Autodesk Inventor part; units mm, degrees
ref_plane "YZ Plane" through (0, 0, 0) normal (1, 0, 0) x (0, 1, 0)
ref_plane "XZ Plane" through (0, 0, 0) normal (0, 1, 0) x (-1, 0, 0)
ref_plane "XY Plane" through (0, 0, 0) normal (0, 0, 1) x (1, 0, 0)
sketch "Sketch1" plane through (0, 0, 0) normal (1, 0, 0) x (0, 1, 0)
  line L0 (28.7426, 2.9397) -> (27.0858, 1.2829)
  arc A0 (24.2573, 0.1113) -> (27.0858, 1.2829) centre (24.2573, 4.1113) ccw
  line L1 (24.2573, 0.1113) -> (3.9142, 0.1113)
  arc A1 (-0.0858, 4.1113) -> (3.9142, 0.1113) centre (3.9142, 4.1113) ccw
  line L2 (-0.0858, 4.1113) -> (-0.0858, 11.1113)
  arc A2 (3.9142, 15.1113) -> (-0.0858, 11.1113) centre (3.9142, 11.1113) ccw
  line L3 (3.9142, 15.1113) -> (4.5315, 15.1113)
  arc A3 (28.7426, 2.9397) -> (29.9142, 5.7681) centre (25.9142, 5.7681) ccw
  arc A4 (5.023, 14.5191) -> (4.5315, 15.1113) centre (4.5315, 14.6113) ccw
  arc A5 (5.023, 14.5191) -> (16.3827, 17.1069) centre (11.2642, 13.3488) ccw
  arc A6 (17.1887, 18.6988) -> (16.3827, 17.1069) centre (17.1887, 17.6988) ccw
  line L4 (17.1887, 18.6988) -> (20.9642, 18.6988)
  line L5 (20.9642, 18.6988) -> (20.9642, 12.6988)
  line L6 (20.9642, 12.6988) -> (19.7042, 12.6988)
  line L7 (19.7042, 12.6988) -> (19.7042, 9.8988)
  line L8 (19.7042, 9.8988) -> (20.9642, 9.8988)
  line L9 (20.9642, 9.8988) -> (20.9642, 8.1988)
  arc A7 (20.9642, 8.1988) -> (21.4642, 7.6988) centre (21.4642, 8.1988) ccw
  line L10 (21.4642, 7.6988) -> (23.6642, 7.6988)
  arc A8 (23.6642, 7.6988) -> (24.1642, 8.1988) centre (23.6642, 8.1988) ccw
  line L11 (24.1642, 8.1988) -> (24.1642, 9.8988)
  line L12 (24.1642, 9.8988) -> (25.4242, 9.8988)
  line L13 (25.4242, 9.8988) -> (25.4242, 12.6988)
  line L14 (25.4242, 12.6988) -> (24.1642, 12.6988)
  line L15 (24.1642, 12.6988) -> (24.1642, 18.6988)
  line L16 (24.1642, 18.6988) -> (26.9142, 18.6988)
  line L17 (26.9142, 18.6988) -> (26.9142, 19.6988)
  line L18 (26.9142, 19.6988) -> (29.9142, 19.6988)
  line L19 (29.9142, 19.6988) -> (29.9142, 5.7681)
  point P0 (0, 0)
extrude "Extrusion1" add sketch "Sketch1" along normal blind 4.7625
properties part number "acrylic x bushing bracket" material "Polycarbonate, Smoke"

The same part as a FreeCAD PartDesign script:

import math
import FreeCAD as App
import Part
import Sketcher

V = App.Vector
Q = App.Units.Quantity

doc = App.newDocument("Part")
body = doc.addObject("PartDesign::Body", "Body")

# Sketch on YZ plane
sketch1 = body.newObject("Sketcher::SketchObject", "Sketch")
sketch1.AttachmentSupport = (doc.getObject("YZ_Plane"), [""])
sketch1.MapMode = "FlatFace"
sketch1.addGeometry(Part.LineSegment(V(27.1, 1.3, 0), V(28.7, 2.9, 0)), False)
sketch1.addGeometry(Part.ArcOfCircle(Part.Circle(V(25.9, 5.8, 0), V(0, 0, 1), 4), math.radians(-45), math.radians(0)), False)
sketch1.addGeometry(Part.LineSegment(V(29.9, 5.8, 0), V(29.9, 19.7, 0)), False)
sketch1.addGeometry(Part.LineSegment(V(29.9, 19.7, 0), V(26.9, 19.7, 0)), False)
sketch1.addGeometry(Part.LineSegment(V(26.9, 19.7, 0), V(26.9, 18.7, 0)), False)
sketch1.addGeometry(Part.LineSegment(V(26.9, 18.7, 0), V(24.2, 18.7, 0)), False)
sketch1.addGeometry(Part.LineSegment(V(24.2, 18.7, 0), V(24.2, 12.7, 0)), False)
sketch1.addGeometry(Part.LineSegment(V(24.2, 12.7, 0), V(25.4, 12.7, 0)), False)
sketch1.addGeometry(Part.LineSegment(V(25.4, 12.7, 0), V(25.4, 9.9, 0)), False)
sketch1.addGeometry(Part.LineSegment(V(25.4, 9.9, 0), V(24.2, 9.9, 0)), False)
sketch1.addGeometry(Part.LineSegment(V(24.2, 9.9, 0), V(24.2, 8.2, 0)), False)
sketch1.addGeometry(Part.ArcOfCircle(Part.Circle(V(23.7, 8.2, 0), V(0, 0, 1), 0.5), math.radians(-90), math.radians(0)), False)
sketch1.addGeometry(Part.LineSegment(V(23.7, 7.7, 0), V(21.5, 7.7, 0)), False)
sketch1.addGeometry(Part.ArcOfCircle(Part.Circle(V(21.5, 8.2, 0), V(0, 0, 1), 0.5), math.radians(180), math.radians(270)), False)
sketch1.addGeometry(Part.LineSegment(V(21, 8.2, 0), V(21, 9.9, 0)), False)
sketch1.addGeometry(Part.LineSegment(V(21, 9.9, 0), V(19.7, 9.9, 0)), False)
sketch1.addGeometry(Part.LineSegment(V(19.7, 9.9, 0), V(19.7, 12.7, 0)), False)
sketch1.addGeometry(Part.LineSegment(V(19.7, 12.7, 0), V(21, 12.7, 0)), False)
sketch1.addGeometry(Part.LineSegment(V(21, 12.7, 0), V(21, 18.7, 0)), False)
sketch1.addGeometry(Part.LineSegment(V(21, 18.7, 0), V(17.2, 18.7, 0)), False)
sketch1.addGeometry(Part.ArcOfCircle(Part.Circle(V(17.2, 17.7, 0), V(0, 0, 1), 1), math.radians(90), math.radians(216)), False)
sketch1.addGeometry(Part.ArcOfCircle(Part.Circle(V(11.3, 13.3, 0), V(0, 0, 1), 6.3), math.radians(169), math.radians(396)), False)
sketch1.addGeometry(Part.ArcOfCircle(Part.Circle(V(4.5, 14.6, 0), V(0, 0, 1), 0.5), math.radians(-11), math.radians(90)), False)
sketch1.addGeometry(Part.LineSegment(V(4.5, 15.1, 0), V(3.9, 15.1, 0)), False)
sketch1.addGeometry(Part.ArcOfCircle(Part.Circle(V(3.9, 11.1, 0), V(0, 0, 1), 4), math.radians(90), math.radians(180)), False)
sketch1.addGeometry(Part.LineSegment(V(-0.1, 11.1, 0), V(-0.1, 4.1, 0)), False)
sketch1.addGeometry(Part.ArcOfCircle(Part.Circle(V(3.9, 4.1, 0), V(0, 0, 1), 4), math.radians(180), math.radians(270)), False)
sketch1.addGeometry(Part.LineSegment(V(3.9, 0.1, 0), V(24.3, 0.1, 0)), False)
sketch1.addGeometry(Part.ArcOfCircle(Part.Circle(V(24.3, 4.1, 0), V(0, 0, 1), 4), math.radians(-90), math.radians(-45)), False)
sketch1.addConstraint(Sketcher.Constraint("Tangent", 0, 2, 1, 1))
sketch1.addConstraint(Sketcher.Constraint("Tangent", 1, 2, 2, 1))
sketch1.addConstraint(Sketcher.Constraint("Coincident", 2, 2, 3, 1))
sketch1.addConstraint(Sketcher.Constraint("Coincident", 3, 2, 4, 1))
sketch1.addConstraint(Sketcher.Constraint("Coincident", 4, 2, 5, 1))
sketch1.addConstraint(Sketcher.Constraint("Coincident", 5, 2, 6, 1))
sketch1.addConstraint(Sketcher.Constraint("Coincident", 6, 2, 7, 1))
sketch1.addConstraint(Sketcher.Constraint("Coincident", 7, 2, 8, 1))
sketch1.addConstraint(Sketcher.Constraint("Coincident", 8, 2, 9, 1))
sketch1.addConstraint(Sketcher.Constraint("Coincident", 9, 2, 10, 1))
sketch1.addConstraint(Sketcher.Constraint("Tangent", 10, 2, 11, 2))
sketch1.addConstraint(Sketcher.Constraint("Tangent", 11, 1, 12, 1))
sketch1.addConstraint(Sketcher.Constraint("Tangent", 12, 2, 13, 2))
sketch1.addConstraint(Sketcher.Constraint("Tangent", 13, 1, 14, 1))
sketch1.addConstraint(Sketcher.Constraint("Coincident", 14, 2, 15, 1))
sketch1.addConstraint(Sketcher.Constraint("Coincident", 15, 2, 16, 1))
sketch1.addConstraint(Sketcher.Constraint("Coincident", 16, 2, 17, 1))
sketch1.addConstraint(Sketcher.Constraint("Coincident", 17, 2, 18, 1))
sketch1.addConstraint(Sketcher.Constraint("Coincident", 18, 2, 19, 1))
sketch1.addConstraint(Sketcher.Constraint("Tangent", 19, 2, 20, 1))
sketch1.addConstraint(Sketcher.Constraint("Tangent", 20, 2, 21, 2))
sketch1.addConstraint(Sketcher.Constraint("Tangent", 21, 1, 22, 1))
sketch1.addConstraint(Sketcher.Constraint("Tangent", 22, 2, 23, 1))
sketch1.addConstraint(Sketcher.Constraint("Tangent", 23, 2, 24, 1))
sketch1.addConstraint(Sketcher.Constraint("Tangent", 24, 2, 25, 1))
sketch1.addConstraint(Sketcher.Constraint("Tangent", 25, 2, 26, 1))
sketch1.addConstraint(Sketcher.Constraint("Tangent", 26, 2, 27, 1))
sketch1.addConstraint(Sketcher.Constraint("Tangent", 27, 2, 28, 1))
sketch1.addConstraint(Sketcher.Constraint("Tangent", 28, 2, 0, 1))
sketch1.addConstraint(Sketcher.Constraint("Vertical", 2))
sketch1.addConstraint(Sketcher.Constraint("Horizontal", 3))
sketch1.addConstraint(Sketcher.Constraint("Vertical", 4))
sketch1.addConstraint(Sketcher.Constraint("Horizontal", 5))
sketch1.addConstraint(Sketcher.Constraint("Vertical", 6))
sketch1.addConstraint(Sketcher.Constraint("Horizontal", 7))
sketch1.addConstraint(Sketcher.Constraint("Vertical", 8))
sketch1.addConstraint(Sketcher.Constraint("Horizontal", 9))
sketch1.addConstraint(Sketcher.Constraint("Vertical", 10))
sketch1.addConstraint(Sketcher.Constraint("Horizontal", 12))
sketch1.addConstraint(Sketcher.Constraint("Vertical", 14))
sketch1.addConstraint(Sketcher.Constraint("Horizontal", 15))
sketch1.addConstraint(Sketcher.Constraint("Vertical", 16))
sketch1.addConstraint(Sketcher.Constraint("Horizontal", 17))
sketch1.addConstraint(Sketcher.Constraint("Vertical", 18))
sketch1.addConstraint(Sketcher.Constraint("Horizontal", 19))
sketch1.addConstraint(Sketcher.Constraint("Horizontal", 23))
sketch1.addConstraint(Sketcher.Constraint("Vertical", 25))
sketch1.addConstraint(Sketcher.Constraint("Horizontal", 27))
sketch1.addConstraint(Sketcher.Constraint("Equal", 11, 13))
sketch1.addConstraint(Sketcher.Constraint("Equal", 13, 22))
sketch1.addConstraint(Sketcher.Constraint("Equal", 1, 24))
sketch1.addConstraint(Sketcher.Constraint("Equal", 24, 26))
sketch1.addConstraint(Sketcher.Constraint("Equal", 26, 28))
sketch1.addConstraint(Sketcher.Constraint("Horizontal", 9, 2, 14, 2))
sketch1.addConstraint(Sketcher.Constraint("Horizontal", 7, 2, 16, 2))
sketch1.addConstraint(Sketcher.Constraint("Horizontal", 5, 2, 18, 2))
sketch1.addConstraint(Sketcher.Constraint("Vertical", 6, 2, 9, 2))
sketch1.addConstraint(Sketcher.Constraint("Vertical", 14, 2, 17, 2))
sketch1.addConstraint(Sketcher.Constraint("Equal", 9, 15))
sketch1.addConstraint(Sketcher.Constraint("Radius", 1, 4.0))
sketch1.addConstraint(Sketcher.Constraint("Radius", 20, 1.0))
sketch1.addConstraint(Sketcher.Constraint("Radius", 11, 0.5))
sketch1.addConstraint(Sketcher.Constraint("DistanceX", 3, 2, 3, 1, 3.0))
sketch1.addConstraint(Sketcher.Constraint("DistanceY", 4, 2, 4, 1, 1.0))
sketch1.addConstraint(Sketcher.Constraint("DistanceY", 6, 2, 6, 1, 6.0))
sketch1.addConstraint(Sketcher.Constraint("DistanceY", 25, 2, 25, 1, 7.0))
sketch1.addConstraint(Sketcher.Constraint("Angle", 0, Q("45 deg")))
sketch1.addConstraint(Sketcher.Constraint("Radius", 21, 6.35))
sketch1.addConstraint(Sketcher.Constraint("DistanceX", 12, 2, 12, 1, 2.2))
sketch1.addConstraint(Sketcher.Constraint("DistanceY", 8, 2, 8, 1, 2.8))
sketch1.addConstraint(Sketcher.Constraint("DistanceY", 10, 2, 10, 1, 1.7))
sketch1.addConstraint(Sketcher.Constraint("DistanceX", 5, 2, 5, 1, 2.75))
sketch1.addConstraint(Sketcher.Constraint("DistanceX", 7, 1, 7, 2, 1.26))
sketch1.addConstraint(Sketcher.Constraint("DistanceX", 21, 3, 13, 3, 10.2))
sketch1.addConstraint(Sketcher.Constraint("DistanceX", 27, 1, 27, 2, 20.343))
sketch1.addConstraint(Sketcher.Constraint("DistanceY", 21, 3, 20, 3, 4.35))
sketch1.addConstraint(Sketcher.Constraint("DistanceX", 24, 3, 21, 3, 7.35))
sketch1.addConstraint(Sketcher.Constraint("DistanceX", 23, 2, 23, 1, 0.6173))
sketch1.addConstraint(Sketcher.Constraint("DistanceY", -1, 1, 1, 3, 5.768))
sketch1.addConstraint(Sketcher.Constraint("DistanceX", -1, 1, 21, 1, 5.023))
pad1 = body.newObject("PartDesign::Pad", "Pad")
pad1.Profile = sketch1
pad1.Length = 4.7625

doc.recompute()
